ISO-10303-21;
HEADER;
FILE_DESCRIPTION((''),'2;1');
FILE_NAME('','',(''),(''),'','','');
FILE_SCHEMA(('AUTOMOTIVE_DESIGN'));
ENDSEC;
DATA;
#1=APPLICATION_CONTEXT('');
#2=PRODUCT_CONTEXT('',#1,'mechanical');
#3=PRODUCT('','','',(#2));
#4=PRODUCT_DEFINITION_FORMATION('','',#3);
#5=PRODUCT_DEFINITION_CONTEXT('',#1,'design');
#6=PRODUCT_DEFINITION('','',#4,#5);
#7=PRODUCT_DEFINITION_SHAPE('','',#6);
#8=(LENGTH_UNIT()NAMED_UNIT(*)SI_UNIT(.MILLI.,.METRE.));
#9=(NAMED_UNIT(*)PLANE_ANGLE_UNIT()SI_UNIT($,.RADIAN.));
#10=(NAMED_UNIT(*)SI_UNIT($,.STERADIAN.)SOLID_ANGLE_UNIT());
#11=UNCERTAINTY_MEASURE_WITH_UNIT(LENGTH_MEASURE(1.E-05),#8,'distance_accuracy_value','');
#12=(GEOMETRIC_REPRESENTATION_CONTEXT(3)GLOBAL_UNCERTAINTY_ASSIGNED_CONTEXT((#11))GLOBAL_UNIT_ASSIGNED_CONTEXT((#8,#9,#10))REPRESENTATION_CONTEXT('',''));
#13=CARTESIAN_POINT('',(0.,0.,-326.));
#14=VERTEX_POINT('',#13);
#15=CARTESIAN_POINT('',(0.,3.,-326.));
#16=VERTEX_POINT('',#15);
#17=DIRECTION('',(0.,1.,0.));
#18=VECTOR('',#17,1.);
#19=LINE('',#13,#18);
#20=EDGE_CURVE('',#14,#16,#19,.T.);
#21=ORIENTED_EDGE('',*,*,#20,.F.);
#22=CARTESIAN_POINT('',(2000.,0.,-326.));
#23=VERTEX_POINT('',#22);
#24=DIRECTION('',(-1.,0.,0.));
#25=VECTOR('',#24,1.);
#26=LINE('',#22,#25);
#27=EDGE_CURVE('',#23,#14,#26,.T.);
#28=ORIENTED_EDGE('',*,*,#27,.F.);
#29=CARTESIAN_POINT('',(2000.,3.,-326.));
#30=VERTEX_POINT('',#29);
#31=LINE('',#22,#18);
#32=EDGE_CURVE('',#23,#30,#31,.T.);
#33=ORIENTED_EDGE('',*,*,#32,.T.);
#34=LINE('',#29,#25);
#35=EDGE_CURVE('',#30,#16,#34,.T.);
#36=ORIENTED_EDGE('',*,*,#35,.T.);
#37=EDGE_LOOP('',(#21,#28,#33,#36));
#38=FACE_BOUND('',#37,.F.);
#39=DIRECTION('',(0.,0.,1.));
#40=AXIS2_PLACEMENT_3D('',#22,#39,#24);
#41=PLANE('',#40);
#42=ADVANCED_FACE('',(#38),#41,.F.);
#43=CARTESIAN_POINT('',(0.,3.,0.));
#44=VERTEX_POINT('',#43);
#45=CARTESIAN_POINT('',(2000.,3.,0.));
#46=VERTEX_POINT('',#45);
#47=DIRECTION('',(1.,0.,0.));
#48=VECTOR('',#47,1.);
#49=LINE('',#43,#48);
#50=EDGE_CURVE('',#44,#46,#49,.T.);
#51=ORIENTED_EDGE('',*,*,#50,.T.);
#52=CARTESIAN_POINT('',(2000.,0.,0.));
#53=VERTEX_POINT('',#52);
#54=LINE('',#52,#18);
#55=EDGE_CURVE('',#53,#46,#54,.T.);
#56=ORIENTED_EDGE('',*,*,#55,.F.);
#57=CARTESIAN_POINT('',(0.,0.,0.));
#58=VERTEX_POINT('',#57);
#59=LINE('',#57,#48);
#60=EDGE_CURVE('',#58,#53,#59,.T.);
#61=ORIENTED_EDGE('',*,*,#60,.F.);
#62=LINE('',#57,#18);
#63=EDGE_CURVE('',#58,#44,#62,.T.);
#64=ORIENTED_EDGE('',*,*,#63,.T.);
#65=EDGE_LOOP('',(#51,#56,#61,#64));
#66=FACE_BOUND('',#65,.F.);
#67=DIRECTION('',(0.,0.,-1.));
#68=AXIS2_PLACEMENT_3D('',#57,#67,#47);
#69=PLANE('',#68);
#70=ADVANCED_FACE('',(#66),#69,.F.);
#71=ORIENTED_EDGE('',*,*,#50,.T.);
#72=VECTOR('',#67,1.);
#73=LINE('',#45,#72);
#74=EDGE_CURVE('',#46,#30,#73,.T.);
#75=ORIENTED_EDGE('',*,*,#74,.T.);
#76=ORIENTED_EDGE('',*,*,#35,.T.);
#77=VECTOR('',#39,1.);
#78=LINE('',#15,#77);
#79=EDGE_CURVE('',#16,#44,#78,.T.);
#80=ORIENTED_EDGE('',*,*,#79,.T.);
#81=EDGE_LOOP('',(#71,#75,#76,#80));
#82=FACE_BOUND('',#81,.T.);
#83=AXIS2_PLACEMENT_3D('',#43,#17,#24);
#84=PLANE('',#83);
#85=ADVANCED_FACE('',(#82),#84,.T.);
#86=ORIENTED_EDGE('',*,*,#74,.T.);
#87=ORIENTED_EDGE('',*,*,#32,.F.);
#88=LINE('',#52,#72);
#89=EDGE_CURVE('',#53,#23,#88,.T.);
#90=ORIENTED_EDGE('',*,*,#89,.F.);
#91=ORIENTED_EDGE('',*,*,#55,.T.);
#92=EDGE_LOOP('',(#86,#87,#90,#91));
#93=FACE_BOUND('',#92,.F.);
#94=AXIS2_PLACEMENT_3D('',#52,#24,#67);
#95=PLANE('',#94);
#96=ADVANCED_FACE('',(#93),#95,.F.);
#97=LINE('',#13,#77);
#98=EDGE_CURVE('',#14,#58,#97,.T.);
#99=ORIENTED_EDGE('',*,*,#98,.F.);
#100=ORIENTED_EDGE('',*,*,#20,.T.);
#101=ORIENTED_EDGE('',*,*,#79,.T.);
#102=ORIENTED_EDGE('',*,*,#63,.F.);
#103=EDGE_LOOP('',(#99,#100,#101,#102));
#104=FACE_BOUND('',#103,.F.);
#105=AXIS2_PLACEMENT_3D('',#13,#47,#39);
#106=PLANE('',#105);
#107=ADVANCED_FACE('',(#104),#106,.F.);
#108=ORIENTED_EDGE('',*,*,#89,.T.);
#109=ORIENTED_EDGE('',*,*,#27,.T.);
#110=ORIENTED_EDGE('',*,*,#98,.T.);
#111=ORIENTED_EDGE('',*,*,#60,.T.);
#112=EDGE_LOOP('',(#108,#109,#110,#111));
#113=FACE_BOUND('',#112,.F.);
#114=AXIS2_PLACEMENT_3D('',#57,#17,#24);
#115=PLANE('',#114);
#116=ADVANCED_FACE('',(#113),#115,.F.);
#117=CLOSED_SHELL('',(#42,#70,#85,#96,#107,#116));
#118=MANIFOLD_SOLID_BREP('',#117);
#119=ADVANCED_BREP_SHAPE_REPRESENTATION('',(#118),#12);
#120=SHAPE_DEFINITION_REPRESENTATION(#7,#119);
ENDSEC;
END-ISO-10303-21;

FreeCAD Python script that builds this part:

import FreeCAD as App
import Part
import Sketcher

doc = App.newDocument("Part")
params = doc.addObject("Spreadsheet::Sheet", "Params")
for row, (alias, value) in enumerate([
    ("sketch1_width", "2000 mm"),
    ("sketch1_height", "326 mm"),
    ("pad1_length", "3 mm"),
], start=1):
    params.set(f"A{row}", alias)
    params.set(f"B{row}", "=" + value)
    params.setAlias(f"B{row}", alias)

body = doc.addObject("PartDesign::Body", "Body")

# Sketch on XZ plane
sketch1 = body.newObject("Sketcher::SketchObject", "Sketch")
sketch1.AttachmentSupport = (doc.getObject("XZ_Plane"), [""])
sketch1.MapMode = "FlatFace"
sketch1.addGeometry([
    Part.LineSegment(App.Vector(0, -326, 0), App.Vector(0, 0, 0)),
    Part.LineSegment(App.Vector(0, 0, 0), App.Vector(2000, 0, 0)),
    Part.LineSegment(App.Vector(2000, 0, 0), App.Vector(2000, -326, 0)),
    Part.LineSegment(App.Vector(2000, -326, 0), App.Vector(0, -326, 0)),
], False)
sketch1.addConstraint([
    Sketcher.Constraint("Coincident", 0, 2, 1, 1),
    Sketcher.Constraint("Coincident", 1, 2, 2, 1),
    Sketcher.Constraint("Coincident", 2, 2, 3, 1),
    Sketcher.Constraint("Coincident", 3, 2, 0, 1),
    Sketcher.Constraint("Vertical", 0),
    Sketcher.Constraint("Horizontal", 1),
    Sketcher.Constraint("Vertical", 2),
    Sketcher.Constraint("Horizontal", 3),
    Sketcher.Constraint("Coincident", 0, 2, -1, 1),
    Sketcher.Constraint("DistanceX", 1, 1, 1, 2, 2000.0),
    Sketcher.Constraint("DistanceY", 0, 1, 0, 2, 326.0),
])
sketch1.setExpression("Constraints[9]", "Params.sketch1_width")
sketch1.setExpression("Constraints[10]", "Params.sketch1_height")
pad1 = body.newObject("PartDesign::Pad", "Pad")
pad1.Profile = sketch1
pad1.setExpression("Length", "Params.pad1_length")
pad1.Reversed = True

doc.recompute()
